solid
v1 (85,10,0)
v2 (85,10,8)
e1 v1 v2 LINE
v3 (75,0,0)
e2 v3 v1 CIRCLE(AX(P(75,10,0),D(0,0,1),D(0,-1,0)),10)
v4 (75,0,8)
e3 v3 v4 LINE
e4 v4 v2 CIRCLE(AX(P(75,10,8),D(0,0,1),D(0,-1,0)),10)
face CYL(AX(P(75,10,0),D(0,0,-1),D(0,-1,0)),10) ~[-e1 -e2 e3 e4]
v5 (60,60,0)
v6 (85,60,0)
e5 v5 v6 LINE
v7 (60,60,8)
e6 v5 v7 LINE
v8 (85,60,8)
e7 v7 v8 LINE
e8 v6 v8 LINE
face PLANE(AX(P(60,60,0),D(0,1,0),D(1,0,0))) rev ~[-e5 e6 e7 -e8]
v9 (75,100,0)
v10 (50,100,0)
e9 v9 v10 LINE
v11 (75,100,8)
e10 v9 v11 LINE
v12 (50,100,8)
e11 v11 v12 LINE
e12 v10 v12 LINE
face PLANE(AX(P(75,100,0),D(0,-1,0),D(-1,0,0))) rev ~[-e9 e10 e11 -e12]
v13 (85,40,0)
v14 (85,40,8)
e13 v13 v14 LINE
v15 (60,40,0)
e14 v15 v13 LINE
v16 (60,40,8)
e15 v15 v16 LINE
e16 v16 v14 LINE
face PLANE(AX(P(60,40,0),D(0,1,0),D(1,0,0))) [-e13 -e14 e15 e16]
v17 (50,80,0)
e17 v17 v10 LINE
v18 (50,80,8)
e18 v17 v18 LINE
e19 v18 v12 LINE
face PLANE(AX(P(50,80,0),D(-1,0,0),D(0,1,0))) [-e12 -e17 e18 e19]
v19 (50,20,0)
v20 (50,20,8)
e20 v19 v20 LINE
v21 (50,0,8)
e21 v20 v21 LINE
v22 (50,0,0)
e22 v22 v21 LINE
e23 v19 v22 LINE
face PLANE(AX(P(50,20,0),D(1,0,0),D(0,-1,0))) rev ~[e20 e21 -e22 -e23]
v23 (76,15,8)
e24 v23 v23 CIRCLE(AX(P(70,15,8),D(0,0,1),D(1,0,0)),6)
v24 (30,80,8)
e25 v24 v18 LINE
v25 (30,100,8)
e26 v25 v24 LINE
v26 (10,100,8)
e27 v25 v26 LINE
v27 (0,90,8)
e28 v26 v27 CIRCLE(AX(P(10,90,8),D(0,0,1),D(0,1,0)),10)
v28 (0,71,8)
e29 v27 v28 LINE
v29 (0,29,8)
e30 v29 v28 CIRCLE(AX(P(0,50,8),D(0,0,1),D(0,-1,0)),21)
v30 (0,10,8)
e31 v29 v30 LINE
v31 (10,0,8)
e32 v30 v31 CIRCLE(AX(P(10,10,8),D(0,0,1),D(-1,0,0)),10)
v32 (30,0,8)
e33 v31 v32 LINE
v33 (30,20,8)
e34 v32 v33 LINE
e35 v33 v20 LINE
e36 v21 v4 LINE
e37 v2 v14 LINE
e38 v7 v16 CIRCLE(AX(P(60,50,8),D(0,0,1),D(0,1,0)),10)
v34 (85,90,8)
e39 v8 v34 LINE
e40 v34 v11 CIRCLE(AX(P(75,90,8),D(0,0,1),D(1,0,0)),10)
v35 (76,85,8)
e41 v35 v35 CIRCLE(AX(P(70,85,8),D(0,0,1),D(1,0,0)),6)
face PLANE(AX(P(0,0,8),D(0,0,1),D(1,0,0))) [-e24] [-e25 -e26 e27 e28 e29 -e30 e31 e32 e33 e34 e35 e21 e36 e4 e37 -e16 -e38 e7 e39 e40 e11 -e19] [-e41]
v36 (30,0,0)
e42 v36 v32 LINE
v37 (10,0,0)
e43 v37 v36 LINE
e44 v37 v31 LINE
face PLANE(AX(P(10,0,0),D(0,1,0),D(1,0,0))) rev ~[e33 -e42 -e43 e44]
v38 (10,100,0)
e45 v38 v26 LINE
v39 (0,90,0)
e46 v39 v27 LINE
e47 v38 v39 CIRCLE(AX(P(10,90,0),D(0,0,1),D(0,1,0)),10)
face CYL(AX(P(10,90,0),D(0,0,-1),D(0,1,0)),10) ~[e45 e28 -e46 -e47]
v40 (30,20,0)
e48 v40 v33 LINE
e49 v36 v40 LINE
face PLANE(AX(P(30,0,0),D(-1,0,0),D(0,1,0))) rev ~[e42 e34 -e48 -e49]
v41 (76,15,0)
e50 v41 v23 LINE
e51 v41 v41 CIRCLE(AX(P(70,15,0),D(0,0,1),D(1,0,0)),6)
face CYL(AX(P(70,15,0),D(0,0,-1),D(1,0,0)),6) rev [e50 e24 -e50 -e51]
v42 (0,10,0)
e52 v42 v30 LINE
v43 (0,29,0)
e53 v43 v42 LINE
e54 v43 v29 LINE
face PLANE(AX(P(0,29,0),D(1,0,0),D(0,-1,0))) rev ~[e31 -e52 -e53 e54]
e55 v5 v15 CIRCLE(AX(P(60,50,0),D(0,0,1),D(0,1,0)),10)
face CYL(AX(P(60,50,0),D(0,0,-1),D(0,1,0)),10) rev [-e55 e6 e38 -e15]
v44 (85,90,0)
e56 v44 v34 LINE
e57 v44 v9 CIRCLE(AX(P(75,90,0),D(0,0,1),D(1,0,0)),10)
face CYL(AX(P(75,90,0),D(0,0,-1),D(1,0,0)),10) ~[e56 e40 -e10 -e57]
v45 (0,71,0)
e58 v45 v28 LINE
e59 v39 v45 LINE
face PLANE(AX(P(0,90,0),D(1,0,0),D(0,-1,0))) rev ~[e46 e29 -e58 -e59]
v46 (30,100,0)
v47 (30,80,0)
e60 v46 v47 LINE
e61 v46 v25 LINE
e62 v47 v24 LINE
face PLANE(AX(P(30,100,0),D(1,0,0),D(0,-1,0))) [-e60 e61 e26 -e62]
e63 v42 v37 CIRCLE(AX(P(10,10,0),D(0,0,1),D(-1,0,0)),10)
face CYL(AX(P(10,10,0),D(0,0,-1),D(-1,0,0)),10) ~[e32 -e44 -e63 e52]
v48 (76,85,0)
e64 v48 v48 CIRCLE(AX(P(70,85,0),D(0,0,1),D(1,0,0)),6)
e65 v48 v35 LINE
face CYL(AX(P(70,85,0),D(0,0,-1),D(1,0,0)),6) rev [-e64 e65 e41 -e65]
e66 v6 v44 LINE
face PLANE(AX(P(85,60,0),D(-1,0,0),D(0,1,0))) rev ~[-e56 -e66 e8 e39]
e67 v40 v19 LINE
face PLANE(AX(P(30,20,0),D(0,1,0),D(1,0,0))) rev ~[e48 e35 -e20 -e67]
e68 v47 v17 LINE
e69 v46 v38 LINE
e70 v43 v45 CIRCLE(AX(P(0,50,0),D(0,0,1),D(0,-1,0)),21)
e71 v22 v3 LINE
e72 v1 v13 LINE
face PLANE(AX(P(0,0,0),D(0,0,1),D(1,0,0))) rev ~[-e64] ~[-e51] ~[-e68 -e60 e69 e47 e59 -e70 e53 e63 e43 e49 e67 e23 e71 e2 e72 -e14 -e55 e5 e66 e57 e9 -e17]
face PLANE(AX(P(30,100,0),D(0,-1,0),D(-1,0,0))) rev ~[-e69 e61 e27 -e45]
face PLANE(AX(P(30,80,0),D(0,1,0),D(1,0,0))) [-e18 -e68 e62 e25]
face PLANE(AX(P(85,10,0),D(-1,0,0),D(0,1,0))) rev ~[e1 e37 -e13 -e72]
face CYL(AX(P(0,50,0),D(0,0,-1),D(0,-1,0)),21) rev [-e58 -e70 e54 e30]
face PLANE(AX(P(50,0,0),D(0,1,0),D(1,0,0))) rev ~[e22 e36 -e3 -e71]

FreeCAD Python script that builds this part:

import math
import FreeCAD as App
import Part
import Sketcher
from FreeCAD import Vector

doc = App.newDocument("Part")
body = doc.addObject("PartDesign::Body", "Body")

# Sketch on XY plane
sketch1 = doc.addObject("Sketcher::SketchObject", "Sketch")
body.addObject(sketch1)
sketch1.AttachmentSupport = (doc.XY_Plane, [""])
sketch1.MapMode = "FlatFace"
sketch1.addGeometry([
    Part.LineSegment(Vector(30, 100, 0), Vector(10, 100, 0)),  # 0
    Part.ArcOfCircle(Part.Circle(Vector(10, 90, 0), Vector(0, 0, 1), 10), math.radians(90), math.radians(180)),  # 1
    Part.LineSegment(Vector(0, 90, 0), Vector(0, 71, 0)),  # 2
    Part.ArcOfCircle(Part.Circle(Vector(0, 50, 0), Vector(0, 0, 1), 21), math.radians(-90), math.radians(90)),  # 3
    Part.LineSegment(Vector(0, 29, 0), Vector(0, 10, 0)),  # 4
    Part.ArcOfCircle(Part.Circle(Vector(10, 10, 0), Vector(0, 0, 1), 10), math.radians(180), math.radians(270)),  # 5
    Part.LineSegment(Vector(10, 0, 0), Vector(30, 0, 0)),  # 6
    Part.LineSegment(Vector(30, 0, 0), Vector(30, 20, 0)),  # 7
    Part.LineSegment(Vector(30, 20, 0), Vector(50, 20, 0)),  # 8
    Part.LineSegment(Vector(50, 20, 0), Vector(50, 0, 0)),  # 9
    Part.LineSegment(Vector(50, 0, 0), Vector(75, 0, 0)),  # 10
    Part.ArcOfCircle(Part.Circle(Vector(75, 10, 0), Vector(0, 0, 1), 10), math.radians(-90), math.radians(0)),  # 11
    Part.LineSegment(Vector(85, 10, 0), Vector(85, 40, 0)),  # 12
    Part.LineSegment(Vector(85, 40, 0), Vector(60, 40, 0)),  # 13
    Part.ArcOfCircle(Part.Circle(Vector(60, 50, 0), Vector(0, 0, 1), 10), math.radians(90), math.radians(270)),  # 14
    Part.LineSegment(Vector(60, 60, 0), Vector(85, 60, 0)),  # 15
    Part.LineSegment(Vector(85, 60, 0), Vector(85, 90, 0)),  # 16
    Part.ArcOfCircle(Part.Circle(Vector(75, 90, 0), Vector(0, 0, 1), 10), math.radians(0), math.radians(90)),  # 17
    Part.LineSegment(Vector(75, 100, 0), Vector(50, 100, 0)),  # 18
    Part.LineSegment(Vector(50, 100, 0), Vector(50, 80, 0)),  # 19
    Part.LineSegment(Vector(50, 80, 0), Vector(30, 80, 0)),  # 20
    Part.LineSegment(Vector(30, 80, 0), Vector(30, 100, 0)),  # 21
    Part.Circle(Vector(70, 15, 0), Vector(0, 0, 1), 6),  # 22
    Part.Circle(Vector(70, 85, 0), Vector(0, 0, 1), 6),  # 23
], False)
sketch1.addConstraint([
    Sketcher.Constraint("Tangent", 0, 2, 1, 1),
    Sketcher.Constraint("Tangent", 1, 2, 2, 1),
    Sketcher.Constraint("Coincident", 2, 2, 3, 2),
    Sketcher.Constraint("Coincident", 3, 1, 4, 1),
    Sketcher.Constraint("Tangent", 4, 2, 5, 1),
    Sketcher.Constraint("Tangent", 5, 2, 6, 1),
    Sketcher.Constraint("Coincident", 6, 2, 7, 1),
    Sketcher.Constraint("Coincident", 7, 2, 8, 1),
    Sketcher.Constraint("Coincident", 8, 2, 9, 1),
    Sketcher.Constraint("Coincident", 9, 2, 10, 1),
    Sketcher.Constraint("Tangent", 10, 2, 11, 1),
    Sketcher.Constraint("Tangent", 11, 2, 12, 1),
    Sketcher.Constraint("Coincident", 12, 2, 13, 1),
    Sketcher.Constraint("Tangent", 13, 2, 14, 2),
    Sketcher.Constraint("Tangent", 14, 1, 15, 1),
    Sketcher.Constraint("Coincident", 15, 2, 16, 1),
    Sketcher.Constraint("Tangent", 16, 2, 17, 1),
    Sketcher.Constraint("Tangent", 17, 2, 18, 1),
    Sketcher.Constraint("Coincident", 18, 2, 19, 1),
    Sketcher.Constraint("Coincident", 19, 2, 20, 1),
    Sketcher.Constraint("Coincident", 20, 2, 21, 1),
    Sketcher.Constraint("Coincident", 21, 2, 0, 1),
    Sketcher.Constraint("Horizontal", 0),
    Sketcher.Constraint("Vertical", 2),
    Sketcher.Constraint("Vertical", 4),
    Sketcher.Constraint("Horizontal", 6),
    Sketcher.Constraint("Vertical", 7),
    Sketcher.Constraint("Horizontal", 8),
    Sketcher.Constraint("Vertical", 9),
    Sketcher.Constraint("Horizontal", 10),
    Sketcher.Constraint("Vertical", 12),
    Sketcher.Constraint("Horizontal", 13),
    Sketcher.Constraint("Horizontal", 15),
    Sketcher.Constraint("Vertical", 16),
    Sketcher.Constraint("Horizontal", 18),
    Sketcher.Constraint("Vertical", 19),
    Sketcher.Constraint("Horizontal", 20),
    Sketcher.Constraint("Vertical", 21),
    Sketcher.Constraint("Equal", 1, 5),
    Sketcher.Constraint("Equal", 5, 11),
    Sketcher.Constraint("Equal", 11, 14),
    Sketcher.Constraint("Equal", 14, 17),
    Sketcher.Constraint("Equal", 22, 23),
    Sketcher.Constraint("PointOnObject", 3, 3, -2),
    Sketcher.Constraint("PointOnObject", 1, 2, -2),
    Sketcher.Constraint("PointOnObject", 3, 1, -2),
    Sketcher.Constraint("PointOnObject", 5, 2, -1),
    Sketcher.Constraint("PointOnObject", 9, 2, -1),
    Sketcher.Constraint("Horizontal", 3, 3, 14, 3),
    Sketcher.Constraint("Horizontal", 1, 3, 17, 3),
    Sketcher.Constraint("Vertical", 11, 3, 17, 3),
    Sketcher.Constraint("Vertical", 22, 3, 23, 3),
    Sketcher.Constraint("Vertical", 9, 2, 18, 2),
    Sketcher.Constraint("Vertical", 7, 2, 20, 2),
    Sketcher.Constraint("Equal", 6, 8),
    Sketcher.Constraint("Equal", 10, 13),
    Sketcher.Constraint("Equal", 2, 4),
    Sketcher.Constraint("Equal", 20, 7),
    Sketcher.Constraint("Equal", 9, 19),
    Sketcher.Constraint("Radius", 1, 10.0),
    Sketcher.Constraint("Diameter", 22, 12.0),
    Sketcher.Constraint("DistanceY", -1, 1, 23, 3, 85.0),
    Sketcher.Constraint("DistanceY", -1, 1, 0, 2, 100.0),
    Sketcher.Constraint("DistanceX", -1, 1, 11, 2, 85.0),
    Sketcher.Constraint("Radius", 3, 21.0),
    Sketcher.Constraint("DistanceX", 14, 3, 22, 3, 10.0),
    Sketcher.Constraint("DistanceY", 5, 3, 7, 2, 10.0),
    Sketcher.Constraint("DistanceY", -1, 1, 22, 3, 15.0),
])
pad1 = doc.addObject("PartDesign::Pad", "Pad")
body.addObject(pad1)
pad1.Profile = sketch1
pad1.Length = 8

doc.recompute()
